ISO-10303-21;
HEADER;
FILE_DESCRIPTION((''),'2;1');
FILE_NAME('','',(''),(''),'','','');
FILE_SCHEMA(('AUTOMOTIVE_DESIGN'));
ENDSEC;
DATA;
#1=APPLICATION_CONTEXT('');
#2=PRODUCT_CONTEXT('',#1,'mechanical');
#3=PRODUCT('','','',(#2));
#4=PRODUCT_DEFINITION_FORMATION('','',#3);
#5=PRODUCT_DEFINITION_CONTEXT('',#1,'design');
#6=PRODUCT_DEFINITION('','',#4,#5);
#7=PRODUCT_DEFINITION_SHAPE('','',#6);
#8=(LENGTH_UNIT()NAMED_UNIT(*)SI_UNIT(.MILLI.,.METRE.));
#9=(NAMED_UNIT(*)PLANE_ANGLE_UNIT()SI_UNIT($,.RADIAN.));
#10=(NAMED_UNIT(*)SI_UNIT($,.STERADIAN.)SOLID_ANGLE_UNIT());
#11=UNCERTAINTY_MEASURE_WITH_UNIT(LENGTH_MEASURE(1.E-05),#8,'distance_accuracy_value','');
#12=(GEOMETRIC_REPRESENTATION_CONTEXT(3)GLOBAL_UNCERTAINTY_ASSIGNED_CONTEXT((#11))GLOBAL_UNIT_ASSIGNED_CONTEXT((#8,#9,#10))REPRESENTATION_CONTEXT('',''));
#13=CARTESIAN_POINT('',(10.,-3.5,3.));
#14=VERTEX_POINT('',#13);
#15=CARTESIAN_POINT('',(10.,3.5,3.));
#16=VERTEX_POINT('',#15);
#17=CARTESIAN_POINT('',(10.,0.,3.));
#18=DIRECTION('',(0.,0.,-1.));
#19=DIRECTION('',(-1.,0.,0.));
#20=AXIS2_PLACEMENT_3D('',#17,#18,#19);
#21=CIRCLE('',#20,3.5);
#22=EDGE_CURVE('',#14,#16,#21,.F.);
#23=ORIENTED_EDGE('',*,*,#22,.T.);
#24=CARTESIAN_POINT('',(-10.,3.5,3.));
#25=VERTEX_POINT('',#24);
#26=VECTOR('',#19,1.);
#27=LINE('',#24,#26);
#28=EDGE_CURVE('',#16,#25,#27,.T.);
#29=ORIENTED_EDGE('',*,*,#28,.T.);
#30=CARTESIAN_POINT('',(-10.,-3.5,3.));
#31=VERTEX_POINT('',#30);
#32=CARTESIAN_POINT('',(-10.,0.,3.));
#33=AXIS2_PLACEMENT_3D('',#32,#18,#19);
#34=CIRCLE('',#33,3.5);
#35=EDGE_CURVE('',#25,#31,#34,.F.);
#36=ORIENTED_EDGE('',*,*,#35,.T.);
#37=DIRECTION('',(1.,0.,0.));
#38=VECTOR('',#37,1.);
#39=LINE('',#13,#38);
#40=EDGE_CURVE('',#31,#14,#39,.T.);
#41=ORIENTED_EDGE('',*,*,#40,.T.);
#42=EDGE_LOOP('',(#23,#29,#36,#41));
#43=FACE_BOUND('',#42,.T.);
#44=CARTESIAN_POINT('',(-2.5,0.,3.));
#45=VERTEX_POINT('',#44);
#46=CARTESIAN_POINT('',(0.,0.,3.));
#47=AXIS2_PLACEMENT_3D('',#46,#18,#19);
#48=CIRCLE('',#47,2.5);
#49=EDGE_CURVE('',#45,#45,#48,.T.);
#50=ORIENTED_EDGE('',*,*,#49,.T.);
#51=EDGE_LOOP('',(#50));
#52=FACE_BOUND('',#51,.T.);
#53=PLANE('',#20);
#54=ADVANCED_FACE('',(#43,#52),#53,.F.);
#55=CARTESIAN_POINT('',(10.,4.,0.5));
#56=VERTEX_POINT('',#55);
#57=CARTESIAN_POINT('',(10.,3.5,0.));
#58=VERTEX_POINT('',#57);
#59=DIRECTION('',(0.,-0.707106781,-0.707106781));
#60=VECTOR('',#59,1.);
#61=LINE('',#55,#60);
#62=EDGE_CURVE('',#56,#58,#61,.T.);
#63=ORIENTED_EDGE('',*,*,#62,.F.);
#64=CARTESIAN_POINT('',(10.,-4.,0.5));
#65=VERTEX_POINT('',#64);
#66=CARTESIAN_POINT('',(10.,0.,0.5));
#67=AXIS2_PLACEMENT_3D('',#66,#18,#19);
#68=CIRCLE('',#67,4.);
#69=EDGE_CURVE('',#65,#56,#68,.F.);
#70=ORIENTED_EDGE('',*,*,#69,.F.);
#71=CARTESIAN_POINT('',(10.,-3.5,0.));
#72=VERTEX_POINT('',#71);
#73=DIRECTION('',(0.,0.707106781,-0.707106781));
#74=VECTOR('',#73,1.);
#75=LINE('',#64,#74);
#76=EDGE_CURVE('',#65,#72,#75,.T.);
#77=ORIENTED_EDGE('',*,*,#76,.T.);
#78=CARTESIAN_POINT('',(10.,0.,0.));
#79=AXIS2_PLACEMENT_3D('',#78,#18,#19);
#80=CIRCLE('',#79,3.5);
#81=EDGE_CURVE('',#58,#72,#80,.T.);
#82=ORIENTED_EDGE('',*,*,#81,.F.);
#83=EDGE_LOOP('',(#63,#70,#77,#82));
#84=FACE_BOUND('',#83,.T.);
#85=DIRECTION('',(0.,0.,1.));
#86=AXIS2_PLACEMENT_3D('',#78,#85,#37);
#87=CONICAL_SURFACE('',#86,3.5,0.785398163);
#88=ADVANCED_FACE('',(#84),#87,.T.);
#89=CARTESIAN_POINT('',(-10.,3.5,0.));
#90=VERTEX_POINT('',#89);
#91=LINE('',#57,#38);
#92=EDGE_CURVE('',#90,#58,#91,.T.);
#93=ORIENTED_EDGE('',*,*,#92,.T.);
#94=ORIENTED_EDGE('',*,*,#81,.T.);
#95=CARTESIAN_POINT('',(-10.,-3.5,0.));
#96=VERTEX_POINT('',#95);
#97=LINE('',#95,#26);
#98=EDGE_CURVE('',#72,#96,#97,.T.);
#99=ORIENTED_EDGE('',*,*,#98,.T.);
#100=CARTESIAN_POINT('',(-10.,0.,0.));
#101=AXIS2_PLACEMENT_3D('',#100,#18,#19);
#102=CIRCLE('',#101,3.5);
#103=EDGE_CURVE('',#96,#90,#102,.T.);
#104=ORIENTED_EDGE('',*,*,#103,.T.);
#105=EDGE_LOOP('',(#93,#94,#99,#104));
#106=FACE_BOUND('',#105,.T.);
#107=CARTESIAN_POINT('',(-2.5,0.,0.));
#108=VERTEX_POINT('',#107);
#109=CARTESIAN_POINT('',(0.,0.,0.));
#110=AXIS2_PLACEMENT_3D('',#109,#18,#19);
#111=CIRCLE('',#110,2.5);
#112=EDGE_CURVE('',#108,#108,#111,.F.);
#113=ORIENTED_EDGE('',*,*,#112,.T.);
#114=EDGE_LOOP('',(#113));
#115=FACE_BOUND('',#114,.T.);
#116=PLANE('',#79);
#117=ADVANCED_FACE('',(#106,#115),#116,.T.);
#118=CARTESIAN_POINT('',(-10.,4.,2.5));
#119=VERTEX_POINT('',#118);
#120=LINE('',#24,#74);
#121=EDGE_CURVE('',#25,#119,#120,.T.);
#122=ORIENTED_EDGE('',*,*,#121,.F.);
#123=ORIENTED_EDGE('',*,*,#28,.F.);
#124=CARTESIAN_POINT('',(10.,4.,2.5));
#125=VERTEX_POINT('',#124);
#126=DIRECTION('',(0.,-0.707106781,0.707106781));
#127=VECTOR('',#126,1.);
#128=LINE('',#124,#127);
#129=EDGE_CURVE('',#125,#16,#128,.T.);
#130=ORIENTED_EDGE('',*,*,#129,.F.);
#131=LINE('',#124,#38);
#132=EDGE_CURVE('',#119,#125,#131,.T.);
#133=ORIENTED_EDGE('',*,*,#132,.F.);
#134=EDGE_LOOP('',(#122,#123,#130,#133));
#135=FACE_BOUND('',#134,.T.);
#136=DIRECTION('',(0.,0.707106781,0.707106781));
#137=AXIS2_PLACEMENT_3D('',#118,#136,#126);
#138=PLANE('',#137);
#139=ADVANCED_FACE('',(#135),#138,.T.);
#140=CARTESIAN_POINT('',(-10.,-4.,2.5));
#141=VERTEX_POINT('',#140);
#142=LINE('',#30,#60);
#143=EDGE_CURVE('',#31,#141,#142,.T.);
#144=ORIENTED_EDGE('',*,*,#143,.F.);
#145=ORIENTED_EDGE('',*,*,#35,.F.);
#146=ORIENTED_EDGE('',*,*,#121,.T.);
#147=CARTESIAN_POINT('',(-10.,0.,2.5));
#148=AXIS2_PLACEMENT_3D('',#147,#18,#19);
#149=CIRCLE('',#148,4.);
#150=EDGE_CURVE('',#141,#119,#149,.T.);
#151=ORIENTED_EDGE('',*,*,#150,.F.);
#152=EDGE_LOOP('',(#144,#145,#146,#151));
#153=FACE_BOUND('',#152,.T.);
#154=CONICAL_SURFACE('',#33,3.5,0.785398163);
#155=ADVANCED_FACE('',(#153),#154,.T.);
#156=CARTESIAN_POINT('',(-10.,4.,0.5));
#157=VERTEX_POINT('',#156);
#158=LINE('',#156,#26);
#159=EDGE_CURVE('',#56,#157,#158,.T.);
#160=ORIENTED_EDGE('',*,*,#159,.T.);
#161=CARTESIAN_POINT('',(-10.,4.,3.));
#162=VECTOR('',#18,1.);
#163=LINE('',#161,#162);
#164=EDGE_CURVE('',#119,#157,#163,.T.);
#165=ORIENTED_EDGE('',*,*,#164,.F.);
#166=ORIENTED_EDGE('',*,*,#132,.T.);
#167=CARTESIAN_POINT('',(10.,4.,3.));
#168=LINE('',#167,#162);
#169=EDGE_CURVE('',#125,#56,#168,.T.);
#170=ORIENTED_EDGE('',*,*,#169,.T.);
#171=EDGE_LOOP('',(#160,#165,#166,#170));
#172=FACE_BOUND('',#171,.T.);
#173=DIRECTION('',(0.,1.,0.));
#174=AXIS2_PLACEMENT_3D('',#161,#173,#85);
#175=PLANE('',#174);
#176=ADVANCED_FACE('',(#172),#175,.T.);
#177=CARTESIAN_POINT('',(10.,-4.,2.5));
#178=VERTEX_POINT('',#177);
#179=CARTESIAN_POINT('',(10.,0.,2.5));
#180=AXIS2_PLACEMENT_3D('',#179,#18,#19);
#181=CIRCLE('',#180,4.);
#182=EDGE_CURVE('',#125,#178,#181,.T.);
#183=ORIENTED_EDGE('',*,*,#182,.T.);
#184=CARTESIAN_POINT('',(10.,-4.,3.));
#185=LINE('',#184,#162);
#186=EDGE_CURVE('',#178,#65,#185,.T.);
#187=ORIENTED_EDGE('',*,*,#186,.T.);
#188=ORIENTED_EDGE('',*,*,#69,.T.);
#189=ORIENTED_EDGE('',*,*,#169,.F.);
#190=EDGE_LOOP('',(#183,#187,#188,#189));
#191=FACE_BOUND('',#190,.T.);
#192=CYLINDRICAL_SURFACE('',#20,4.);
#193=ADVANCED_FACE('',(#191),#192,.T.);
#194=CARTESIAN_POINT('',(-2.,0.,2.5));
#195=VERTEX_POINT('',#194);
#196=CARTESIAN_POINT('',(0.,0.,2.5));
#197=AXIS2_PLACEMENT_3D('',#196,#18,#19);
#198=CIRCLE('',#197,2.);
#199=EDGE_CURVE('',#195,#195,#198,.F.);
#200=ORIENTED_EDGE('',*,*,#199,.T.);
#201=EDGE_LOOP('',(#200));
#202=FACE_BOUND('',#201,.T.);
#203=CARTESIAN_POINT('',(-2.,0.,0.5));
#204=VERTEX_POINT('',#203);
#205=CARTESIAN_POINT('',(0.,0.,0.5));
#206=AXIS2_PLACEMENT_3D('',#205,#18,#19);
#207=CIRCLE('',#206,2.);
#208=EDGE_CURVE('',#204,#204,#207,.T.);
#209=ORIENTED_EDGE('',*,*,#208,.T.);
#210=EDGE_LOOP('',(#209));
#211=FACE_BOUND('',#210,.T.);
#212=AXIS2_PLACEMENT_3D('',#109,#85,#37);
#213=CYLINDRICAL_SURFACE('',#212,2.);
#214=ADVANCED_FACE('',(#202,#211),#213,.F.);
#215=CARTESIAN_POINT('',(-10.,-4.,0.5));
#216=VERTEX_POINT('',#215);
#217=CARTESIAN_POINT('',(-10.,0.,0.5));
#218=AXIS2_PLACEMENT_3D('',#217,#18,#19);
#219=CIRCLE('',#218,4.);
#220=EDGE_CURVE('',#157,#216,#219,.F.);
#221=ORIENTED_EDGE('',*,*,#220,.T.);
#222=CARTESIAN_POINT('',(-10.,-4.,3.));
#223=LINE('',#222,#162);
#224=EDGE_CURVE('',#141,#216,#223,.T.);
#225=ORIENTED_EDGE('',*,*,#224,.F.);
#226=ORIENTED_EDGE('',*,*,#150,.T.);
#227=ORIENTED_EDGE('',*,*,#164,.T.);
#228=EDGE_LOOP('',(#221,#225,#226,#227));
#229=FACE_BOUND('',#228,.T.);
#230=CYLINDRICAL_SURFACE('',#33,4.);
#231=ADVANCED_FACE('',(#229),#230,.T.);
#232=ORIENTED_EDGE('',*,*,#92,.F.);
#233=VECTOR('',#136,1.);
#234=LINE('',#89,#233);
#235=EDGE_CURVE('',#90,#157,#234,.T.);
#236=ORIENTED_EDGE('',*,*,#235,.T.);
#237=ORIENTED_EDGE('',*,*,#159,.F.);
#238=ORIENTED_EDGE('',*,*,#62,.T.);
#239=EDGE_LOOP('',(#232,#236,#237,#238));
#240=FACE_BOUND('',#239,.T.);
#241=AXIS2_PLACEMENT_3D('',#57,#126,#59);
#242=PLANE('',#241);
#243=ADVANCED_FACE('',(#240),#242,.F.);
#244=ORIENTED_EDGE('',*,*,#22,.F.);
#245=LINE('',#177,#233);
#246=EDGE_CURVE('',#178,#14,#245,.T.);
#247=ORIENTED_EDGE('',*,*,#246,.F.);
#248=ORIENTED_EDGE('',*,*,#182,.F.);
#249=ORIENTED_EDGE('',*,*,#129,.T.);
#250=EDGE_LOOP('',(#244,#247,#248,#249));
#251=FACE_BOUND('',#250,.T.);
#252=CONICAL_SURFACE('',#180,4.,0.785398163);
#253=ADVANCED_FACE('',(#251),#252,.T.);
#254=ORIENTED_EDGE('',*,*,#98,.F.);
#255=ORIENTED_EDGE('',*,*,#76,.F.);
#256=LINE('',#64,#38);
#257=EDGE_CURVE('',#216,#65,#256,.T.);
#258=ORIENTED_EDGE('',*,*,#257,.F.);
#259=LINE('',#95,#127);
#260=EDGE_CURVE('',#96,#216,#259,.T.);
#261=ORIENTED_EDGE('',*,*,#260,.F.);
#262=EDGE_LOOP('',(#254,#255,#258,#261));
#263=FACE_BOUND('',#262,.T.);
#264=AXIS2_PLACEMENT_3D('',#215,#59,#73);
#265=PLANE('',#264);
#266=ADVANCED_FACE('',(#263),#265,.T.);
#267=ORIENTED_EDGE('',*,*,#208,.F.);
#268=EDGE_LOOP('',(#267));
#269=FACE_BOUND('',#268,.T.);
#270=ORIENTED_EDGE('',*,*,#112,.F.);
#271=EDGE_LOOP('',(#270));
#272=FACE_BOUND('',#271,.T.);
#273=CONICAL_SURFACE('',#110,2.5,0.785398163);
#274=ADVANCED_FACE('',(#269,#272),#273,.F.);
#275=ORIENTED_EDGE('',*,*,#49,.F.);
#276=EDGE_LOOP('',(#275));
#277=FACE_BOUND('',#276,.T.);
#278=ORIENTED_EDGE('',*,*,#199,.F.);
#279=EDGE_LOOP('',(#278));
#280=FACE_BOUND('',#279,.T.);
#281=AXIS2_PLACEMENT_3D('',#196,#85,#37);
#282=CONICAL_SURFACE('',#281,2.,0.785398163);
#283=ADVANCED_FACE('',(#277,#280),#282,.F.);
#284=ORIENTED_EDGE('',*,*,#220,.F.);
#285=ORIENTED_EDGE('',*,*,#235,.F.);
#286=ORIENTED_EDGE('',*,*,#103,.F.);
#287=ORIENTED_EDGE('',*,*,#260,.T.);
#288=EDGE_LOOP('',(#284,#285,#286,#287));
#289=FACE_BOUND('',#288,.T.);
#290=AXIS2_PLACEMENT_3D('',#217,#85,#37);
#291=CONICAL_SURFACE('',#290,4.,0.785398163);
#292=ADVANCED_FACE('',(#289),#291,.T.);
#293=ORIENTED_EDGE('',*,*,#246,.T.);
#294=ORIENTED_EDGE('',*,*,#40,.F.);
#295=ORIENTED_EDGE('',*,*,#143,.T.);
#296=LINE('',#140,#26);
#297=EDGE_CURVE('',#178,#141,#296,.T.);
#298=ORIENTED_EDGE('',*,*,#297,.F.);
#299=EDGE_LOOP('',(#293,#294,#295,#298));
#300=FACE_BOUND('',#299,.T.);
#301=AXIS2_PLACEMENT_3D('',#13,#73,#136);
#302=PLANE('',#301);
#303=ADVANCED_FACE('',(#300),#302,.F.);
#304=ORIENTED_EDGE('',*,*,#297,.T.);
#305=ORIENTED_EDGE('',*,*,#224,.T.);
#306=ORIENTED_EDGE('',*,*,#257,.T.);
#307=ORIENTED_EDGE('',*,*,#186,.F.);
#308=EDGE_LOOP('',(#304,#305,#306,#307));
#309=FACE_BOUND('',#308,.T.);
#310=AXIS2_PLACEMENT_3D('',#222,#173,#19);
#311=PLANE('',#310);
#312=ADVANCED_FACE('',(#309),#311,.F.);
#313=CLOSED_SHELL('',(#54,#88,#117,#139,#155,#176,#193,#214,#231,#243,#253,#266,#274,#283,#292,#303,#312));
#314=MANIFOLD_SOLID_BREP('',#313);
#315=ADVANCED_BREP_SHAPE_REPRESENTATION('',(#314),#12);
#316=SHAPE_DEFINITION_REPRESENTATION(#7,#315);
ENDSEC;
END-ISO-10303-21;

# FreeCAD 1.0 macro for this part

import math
import FreeCAD as App
import Part
import Sketcher

V = App.Vector
Q = App.Units.Quantity


def edges_at(feature, points):
    """Names of the edges that pass closest to the given points."""
    edges = feature.Shape.Edges
    near = lambda p: min(range(len(edges)), key=lambda i: edges[i].distToShape(Part.Vertex(*p))[0])
    return sorted({f"Edge{near(p) + 1}" for p in points})

doc = App.newDocument("Part")
body = doc.addObject("PartDesign::Body", "Body")

sketch1 = doc.addObject("Sketcher::SketchObject", "Sketch")
body.addObject(sketch1)
sketch1.AttachmentSupport = (doc.XY_Plane, [""])
sketch1.MapMode = "FlatFace"
sketch1.addGeometry([
    Part.LineSegment(V(10, 4, 0), V(-10, 4, 0)),
    Part.ArcOfCircle(Part.Circle(V(-10, 0, 0), V(0, 0, 1), 4), math.radians(90), math.radians(270)),
    Part.LineSegment(V(-10, -4, 0), V(10, -4, 0)),
    Part.ArcOfCircle(Part.Circle(V(10, 0, 0), V(0, 0, 1), 4), math.radians(-90), math.radians(90)),
], False)
sketch1.addConstraint([
    Sketcher.Constraint("Tangent", 0, 2, 1, 1),
    Sketcher.Constraint("Tangent", 1, 2, 2, 1),
    Sketcher.Constraint("Tangent", 2, 2, 3, 1),
    Sketcher.Constraint("Tangent", 3, 2, 0, 1),
    Sketcher.Constraint("Horizontal", 0),
    Sketcher.Constraint("Horizontal", 2),
    Sketcher.Constraint("Symmetric", 1, 3, 3, 3, -1, 1),
    Sketcher.Constraint("Radius", 1, Q("4 mm")),
    Sketcher.Constraint("DistanceX", 0, 2, 0, 1, Q("20 mm")),
])
pad1 = doc.addObject("PartDesign::Pad", "Pad")
body.addObject(pad1)
pad1.Profile = sketch1
pad1.Length = 3

sketch2 = doc.addObject("Sketcher::SketchObject", "Sketch001")
body.addObject(sketch2)
sketch2.AttachmentSupport = (doc.XY_Plane, [""])
sketch2.MapMode = "FlatFace"
sketch2.AttachmentOffset = App.Placement(V(0, 0, 3), App.Rotation())
sketch2.addGeometry(Part.Circle(V(0, 0, 0), V(0, 0, 1), 2), False)
sketch2.addConstraint([
    Sketcher.Constraint("Coincident", 0, 3, -1, 1),
    Sketcher.Constraint("Diameter", 0, Q("4 mm")),
])
pocket1 = doc.addObject("PartDesign::Pocket", "Pocket")
body.addObject(pocket1)
pocket1.Profile = sketch2
pocket1.Length = 3
doc.recompute()

chamfer = doc.addObject("PartDesign::Chamfer", "Chamfer")
body.addObject(chamfer)
chamfer.Base = (pocket1, edges_at(pocket1, [
    (0, -4, 0),
    (0, -4, 3),
    (14, 0, 0),
    (14, 0, 3),
    (-14, 0, 0),
    (-14, 0, 3),
    (0, 4, 0),
    (2, 0, 0),
    (0, 4, 3),
    (2, 0, 3),
]))
chamfer.Size = 0.5

doc.recompute()
